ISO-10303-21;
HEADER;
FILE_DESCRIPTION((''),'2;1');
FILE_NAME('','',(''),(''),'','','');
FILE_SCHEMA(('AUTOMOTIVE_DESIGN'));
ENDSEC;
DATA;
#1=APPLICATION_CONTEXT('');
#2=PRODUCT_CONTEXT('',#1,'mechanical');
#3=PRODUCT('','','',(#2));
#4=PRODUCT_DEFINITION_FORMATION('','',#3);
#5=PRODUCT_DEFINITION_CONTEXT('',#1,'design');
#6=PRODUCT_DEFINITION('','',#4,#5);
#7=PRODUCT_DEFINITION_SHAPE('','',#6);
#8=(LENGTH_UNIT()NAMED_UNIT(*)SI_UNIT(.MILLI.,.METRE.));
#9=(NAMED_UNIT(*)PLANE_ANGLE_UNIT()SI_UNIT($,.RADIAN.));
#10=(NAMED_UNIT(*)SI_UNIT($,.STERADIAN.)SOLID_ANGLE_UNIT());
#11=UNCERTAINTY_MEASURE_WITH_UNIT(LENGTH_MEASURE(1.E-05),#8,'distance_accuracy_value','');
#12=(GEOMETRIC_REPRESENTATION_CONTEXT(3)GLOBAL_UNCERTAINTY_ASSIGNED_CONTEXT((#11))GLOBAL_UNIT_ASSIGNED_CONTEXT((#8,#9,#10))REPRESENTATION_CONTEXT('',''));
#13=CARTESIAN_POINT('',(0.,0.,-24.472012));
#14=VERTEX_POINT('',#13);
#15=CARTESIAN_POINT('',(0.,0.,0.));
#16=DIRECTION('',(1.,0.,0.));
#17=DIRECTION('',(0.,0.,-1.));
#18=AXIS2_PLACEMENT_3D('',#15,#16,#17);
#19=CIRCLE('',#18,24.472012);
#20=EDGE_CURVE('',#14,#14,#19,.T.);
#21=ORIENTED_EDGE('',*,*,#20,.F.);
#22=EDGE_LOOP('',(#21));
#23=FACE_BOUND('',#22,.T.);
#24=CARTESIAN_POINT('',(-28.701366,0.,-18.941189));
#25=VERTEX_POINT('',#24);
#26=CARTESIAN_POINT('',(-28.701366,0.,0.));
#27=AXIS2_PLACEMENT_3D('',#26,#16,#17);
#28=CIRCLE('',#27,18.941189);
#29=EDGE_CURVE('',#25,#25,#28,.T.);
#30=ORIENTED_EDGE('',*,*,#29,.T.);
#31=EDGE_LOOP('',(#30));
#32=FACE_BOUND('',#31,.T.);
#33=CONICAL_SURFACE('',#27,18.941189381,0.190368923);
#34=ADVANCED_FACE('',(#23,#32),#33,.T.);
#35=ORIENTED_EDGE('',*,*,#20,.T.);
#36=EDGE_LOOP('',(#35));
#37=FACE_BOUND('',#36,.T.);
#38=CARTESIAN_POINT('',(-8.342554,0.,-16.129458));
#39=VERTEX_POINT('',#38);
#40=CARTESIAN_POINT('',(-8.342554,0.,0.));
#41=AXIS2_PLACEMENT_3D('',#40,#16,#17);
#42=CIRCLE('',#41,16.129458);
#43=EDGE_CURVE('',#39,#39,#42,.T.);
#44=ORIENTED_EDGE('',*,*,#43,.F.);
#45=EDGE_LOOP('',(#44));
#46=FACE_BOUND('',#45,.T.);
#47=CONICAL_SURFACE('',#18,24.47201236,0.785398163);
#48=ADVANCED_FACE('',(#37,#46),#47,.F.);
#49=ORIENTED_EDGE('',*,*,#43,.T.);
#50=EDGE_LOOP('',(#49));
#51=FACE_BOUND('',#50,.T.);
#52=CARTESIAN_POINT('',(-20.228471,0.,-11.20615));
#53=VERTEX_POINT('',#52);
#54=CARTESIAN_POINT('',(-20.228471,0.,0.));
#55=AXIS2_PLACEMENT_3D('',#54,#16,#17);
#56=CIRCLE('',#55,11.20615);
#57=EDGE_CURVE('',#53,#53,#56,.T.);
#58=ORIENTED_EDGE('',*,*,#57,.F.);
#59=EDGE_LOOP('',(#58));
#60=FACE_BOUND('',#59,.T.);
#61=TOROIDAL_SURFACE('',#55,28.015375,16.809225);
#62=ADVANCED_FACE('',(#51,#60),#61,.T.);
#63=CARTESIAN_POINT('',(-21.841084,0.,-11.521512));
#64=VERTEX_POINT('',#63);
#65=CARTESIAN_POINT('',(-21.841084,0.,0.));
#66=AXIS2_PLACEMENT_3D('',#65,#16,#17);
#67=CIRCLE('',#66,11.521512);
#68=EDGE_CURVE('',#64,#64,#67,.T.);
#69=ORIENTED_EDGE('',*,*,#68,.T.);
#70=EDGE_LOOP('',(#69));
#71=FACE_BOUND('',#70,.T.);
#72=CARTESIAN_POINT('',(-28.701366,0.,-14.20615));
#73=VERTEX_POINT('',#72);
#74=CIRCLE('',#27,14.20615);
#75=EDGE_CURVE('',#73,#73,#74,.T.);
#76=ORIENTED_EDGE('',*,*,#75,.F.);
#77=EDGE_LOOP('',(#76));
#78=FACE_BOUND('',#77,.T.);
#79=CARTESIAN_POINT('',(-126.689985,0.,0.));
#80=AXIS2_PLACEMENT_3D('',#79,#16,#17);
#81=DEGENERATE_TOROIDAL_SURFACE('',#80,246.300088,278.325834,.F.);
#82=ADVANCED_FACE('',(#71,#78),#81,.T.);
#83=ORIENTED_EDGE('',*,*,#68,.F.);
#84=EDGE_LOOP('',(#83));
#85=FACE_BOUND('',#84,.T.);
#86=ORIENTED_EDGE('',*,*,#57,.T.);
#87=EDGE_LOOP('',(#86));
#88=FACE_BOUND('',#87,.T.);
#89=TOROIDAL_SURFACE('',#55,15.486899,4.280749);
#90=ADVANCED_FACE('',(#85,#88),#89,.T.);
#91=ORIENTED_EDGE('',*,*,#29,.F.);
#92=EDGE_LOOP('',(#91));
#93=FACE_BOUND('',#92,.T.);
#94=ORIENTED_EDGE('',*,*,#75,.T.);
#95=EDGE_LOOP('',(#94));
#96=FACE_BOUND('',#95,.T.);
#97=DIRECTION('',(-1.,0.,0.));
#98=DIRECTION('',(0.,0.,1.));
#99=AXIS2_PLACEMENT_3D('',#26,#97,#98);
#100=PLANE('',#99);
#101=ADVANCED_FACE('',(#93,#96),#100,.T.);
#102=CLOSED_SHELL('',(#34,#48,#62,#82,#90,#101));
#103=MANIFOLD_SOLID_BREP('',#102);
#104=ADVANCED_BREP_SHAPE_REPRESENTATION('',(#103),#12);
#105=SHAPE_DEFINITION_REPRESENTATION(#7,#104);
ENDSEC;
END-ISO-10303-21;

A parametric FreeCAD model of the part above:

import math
import FreeCAD as App
import Part
import Sketcher
Q = App.Units.Quantity

doc = App.newDocument("Part")
body = doc.addObject("PartDesign::Body", "Body")

# Sketch on XY plane
sketch1 = body.newObject("Sketcher::SketchObject", "Sketch")
sketch1.AttachmentSupport = (doc.getObject("XY_Plane"), [""])
sketch1.MapMode = "FlatFace"
sketch1.addGeometry([
    Part.LineSegment(App.Vector(-8.3, 16.1, 0), App.Vector(0, 24.5, 0)),  # 0
    Part.LineSegment(App.Vector(0, 24.5, 0), App.Vector(-28.7, 18.9, 0)),  # 1
    Part.LineSegment(App.Vector(-28.7, 18.9, 0), App.Vector(-28.7, 14.2, 0)),  # 2
    Part.ArcOfCircle(Part.Circle(App.Vector(-126.7, -246.3, 0), App.Vector(0, 0, 1), 278.3), math.radians(67.87), math.radians(69.39)),  # 3
    Part.ArcOfCircle(Part.Circle(App.Vector(-20.2, 15.5, 0), App.Vector(0, 0, 1), 4.3), math.radians(-112), math.radians(-90)),  # 4
    Part.ArcOfCircle(Part.Circle(App.Vector(-20.2, 28, 0), App.Vector(0, 0, 1), 16.8), math.radians(-90), math.radians(-45)),  # 5
], False)
sketch1.addConstraint([
    Sketcher.Constraint("Coincident", 0, 2, 1, 1),
    Sketcher.Constraint("Coincident", 1, 2, 2, 1),
    Sketcher.Constraint("Coincident", 2, 2, 3, 2),
    Sketcher.Constraint("Tangent", 3, 1, 4, 1),
    Sketcher.Constraint("Tangent", 4, 2, 5, 1),
    Sketcher.Constraint("Tangent", 5, 2, 0, 1),
    Sketcher.Constraint("Vertical", 2),
    Sketcher.Constraint("PointOnObject", 0, 2, -2),
    Sketcher.Constraint("Vertical", 4, 3, 5, 3),
    Sketcher.Constraint("Angle", 0, Q("45 deg")),
    Sketcher.Constraint("DistanceY", 4, 2, 2, 2, 3.0),
    Sketcher.Constraint("Radius", 3, 278.32583),
    Sketcher.Constraint("Radius", 4, 4.280749),
    Sketcher.Constraint("Radius", 5, 16.809225),
    Sketcher.Constraint("DistanceY", 2, 2, 2, 1, 4.735039),
    Sketcher.Constraint("DistanceY", -1, 1, 4, 3, 15.486899),
    Sketcher.Constraint("DistanceY", 3, 1, 0, 2, 12.9505),
    Sketcher.Constraint("Distance", 1, 29.22941),
])
revolution = body.newObject("PartDesign::Revolution", "Revolution")
revolution.Profile = sketch1
revolution.ReferenceAxis = (sketch1, ["H_Axis"])
revolution.Angle = 360

doc.recompute()
